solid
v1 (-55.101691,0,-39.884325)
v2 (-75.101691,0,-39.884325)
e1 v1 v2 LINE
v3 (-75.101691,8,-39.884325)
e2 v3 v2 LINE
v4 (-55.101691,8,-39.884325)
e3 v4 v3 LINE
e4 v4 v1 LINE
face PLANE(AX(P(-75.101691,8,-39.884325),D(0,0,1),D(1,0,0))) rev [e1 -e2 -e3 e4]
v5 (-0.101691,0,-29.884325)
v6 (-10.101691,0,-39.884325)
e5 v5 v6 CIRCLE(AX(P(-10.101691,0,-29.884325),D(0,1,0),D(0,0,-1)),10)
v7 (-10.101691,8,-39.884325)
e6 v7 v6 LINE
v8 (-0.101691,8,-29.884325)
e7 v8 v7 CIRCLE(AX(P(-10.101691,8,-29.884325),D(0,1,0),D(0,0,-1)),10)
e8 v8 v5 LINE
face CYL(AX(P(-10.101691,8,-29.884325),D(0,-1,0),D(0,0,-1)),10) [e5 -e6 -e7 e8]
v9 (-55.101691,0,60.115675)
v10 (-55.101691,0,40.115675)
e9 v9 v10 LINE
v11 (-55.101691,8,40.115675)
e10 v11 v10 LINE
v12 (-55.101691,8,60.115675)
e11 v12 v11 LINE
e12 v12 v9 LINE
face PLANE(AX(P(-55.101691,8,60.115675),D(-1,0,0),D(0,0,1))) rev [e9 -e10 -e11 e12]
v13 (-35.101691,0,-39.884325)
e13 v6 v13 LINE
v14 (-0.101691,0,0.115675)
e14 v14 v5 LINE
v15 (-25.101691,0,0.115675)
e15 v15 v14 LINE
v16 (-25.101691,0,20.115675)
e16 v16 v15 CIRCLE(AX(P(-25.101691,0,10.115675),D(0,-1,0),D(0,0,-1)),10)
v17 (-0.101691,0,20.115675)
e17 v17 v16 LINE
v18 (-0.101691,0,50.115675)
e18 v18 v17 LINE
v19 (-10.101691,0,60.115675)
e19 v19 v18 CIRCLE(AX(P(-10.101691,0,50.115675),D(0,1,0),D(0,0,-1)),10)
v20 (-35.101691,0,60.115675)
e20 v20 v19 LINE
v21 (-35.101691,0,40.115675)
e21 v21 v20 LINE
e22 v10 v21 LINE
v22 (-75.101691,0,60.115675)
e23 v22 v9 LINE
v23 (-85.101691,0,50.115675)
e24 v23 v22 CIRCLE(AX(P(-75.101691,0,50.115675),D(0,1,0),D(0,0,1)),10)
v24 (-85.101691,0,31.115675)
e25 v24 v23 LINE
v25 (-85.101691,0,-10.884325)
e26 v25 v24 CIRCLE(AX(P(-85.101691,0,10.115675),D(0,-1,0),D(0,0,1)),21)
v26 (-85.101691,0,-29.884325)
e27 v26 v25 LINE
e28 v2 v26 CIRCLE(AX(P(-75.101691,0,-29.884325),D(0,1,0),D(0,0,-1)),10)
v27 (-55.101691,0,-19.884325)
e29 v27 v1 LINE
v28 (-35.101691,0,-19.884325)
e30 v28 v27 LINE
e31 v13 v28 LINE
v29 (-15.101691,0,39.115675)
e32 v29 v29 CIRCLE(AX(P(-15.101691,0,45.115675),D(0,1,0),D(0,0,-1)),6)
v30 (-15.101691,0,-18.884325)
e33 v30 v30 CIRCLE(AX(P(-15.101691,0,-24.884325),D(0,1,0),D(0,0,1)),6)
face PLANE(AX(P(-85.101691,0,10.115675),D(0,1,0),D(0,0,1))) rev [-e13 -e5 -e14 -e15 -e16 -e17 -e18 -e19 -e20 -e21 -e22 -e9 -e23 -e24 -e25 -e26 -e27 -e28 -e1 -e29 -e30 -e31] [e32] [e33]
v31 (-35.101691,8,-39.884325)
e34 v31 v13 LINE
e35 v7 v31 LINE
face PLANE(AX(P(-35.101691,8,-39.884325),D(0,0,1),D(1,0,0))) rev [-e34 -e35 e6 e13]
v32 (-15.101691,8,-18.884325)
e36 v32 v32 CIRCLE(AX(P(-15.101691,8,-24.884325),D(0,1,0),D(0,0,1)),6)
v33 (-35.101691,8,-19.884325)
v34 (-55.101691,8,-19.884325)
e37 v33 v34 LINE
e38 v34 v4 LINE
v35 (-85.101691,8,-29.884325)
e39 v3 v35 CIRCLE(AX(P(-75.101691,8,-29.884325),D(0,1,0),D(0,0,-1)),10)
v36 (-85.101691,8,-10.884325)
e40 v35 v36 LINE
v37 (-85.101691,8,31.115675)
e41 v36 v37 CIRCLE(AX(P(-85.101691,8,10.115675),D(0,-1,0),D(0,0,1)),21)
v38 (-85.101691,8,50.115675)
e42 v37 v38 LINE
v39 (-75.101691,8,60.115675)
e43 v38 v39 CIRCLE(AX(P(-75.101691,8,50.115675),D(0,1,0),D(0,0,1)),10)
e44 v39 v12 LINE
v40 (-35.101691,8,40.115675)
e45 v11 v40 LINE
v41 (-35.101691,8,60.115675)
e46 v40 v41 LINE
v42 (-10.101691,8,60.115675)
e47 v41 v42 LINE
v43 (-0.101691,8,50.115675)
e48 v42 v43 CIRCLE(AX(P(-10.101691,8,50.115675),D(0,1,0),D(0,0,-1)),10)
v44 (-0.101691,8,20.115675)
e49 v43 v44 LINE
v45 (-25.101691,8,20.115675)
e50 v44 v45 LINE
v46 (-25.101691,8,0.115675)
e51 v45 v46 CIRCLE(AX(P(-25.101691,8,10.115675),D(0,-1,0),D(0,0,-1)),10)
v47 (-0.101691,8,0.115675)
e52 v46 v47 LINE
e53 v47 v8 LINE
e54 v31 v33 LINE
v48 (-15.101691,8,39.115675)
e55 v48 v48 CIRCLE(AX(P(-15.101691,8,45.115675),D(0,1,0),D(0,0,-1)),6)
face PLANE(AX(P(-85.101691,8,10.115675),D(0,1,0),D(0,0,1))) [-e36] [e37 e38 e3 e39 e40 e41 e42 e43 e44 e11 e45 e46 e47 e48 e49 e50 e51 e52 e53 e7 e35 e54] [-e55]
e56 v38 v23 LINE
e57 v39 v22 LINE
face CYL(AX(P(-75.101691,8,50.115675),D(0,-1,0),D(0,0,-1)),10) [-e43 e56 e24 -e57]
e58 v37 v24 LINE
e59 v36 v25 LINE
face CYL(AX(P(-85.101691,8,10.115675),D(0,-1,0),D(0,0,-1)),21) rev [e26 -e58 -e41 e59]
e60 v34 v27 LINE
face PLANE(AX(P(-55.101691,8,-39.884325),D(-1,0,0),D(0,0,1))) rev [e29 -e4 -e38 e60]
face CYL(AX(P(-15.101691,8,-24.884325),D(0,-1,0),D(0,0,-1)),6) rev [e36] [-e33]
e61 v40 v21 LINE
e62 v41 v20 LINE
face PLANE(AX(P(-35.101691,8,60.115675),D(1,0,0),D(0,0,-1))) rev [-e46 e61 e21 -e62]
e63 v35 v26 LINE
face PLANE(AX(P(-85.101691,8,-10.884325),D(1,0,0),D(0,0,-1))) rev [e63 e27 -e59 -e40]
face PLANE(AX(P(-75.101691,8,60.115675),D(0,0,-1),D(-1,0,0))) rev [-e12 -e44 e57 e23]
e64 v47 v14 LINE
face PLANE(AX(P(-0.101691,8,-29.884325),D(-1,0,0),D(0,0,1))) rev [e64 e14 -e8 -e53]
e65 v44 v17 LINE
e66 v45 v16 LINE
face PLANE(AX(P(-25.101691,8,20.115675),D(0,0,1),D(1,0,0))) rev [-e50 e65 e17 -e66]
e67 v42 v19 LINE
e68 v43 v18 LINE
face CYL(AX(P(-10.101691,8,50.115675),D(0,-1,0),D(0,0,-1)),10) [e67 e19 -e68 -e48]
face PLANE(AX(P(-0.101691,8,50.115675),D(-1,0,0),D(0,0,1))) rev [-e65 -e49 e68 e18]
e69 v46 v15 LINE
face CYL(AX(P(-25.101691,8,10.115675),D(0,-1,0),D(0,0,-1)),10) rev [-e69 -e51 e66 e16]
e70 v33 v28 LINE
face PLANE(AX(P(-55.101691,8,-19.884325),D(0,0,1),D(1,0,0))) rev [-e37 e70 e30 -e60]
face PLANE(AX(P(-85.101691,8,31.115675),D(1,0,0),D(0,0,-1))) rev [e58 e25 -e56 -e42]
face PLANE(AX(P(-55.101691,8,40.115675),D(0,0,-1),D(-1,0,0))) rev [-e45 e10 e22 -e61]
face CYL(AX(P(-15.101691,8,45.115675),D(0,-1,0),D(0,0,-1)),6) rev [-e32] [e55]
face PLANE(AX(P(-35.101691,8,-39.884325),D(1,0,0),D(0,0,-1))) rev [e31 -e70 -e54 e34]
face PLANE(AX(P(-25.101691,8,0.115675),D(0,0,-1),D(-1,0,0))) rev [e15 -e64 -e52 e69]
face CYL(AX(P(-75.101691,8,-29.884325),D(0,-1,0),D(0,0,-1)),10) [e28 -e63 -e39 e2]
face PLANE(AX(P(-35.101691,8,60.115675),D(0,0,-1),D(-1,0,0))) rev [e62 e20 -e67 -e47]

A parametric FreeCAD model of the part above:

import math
import FreeCAD as App
import Part
import Sketcher
Q = App.Units.Quantity

doc = App.newDocument("Part")
body = doc.addObject("PartDesign::Body", "Body")

# Sketch on XZ plane
sketch1 = body.newObject("Sketcher::SketchObject", "Sketch")
sketch1.AttachmentSupport = (doc.getObject("XZ_Plane"), [""])
sketch1.MapMode = "FlatFace"
sketch1.addGeometry([
    Part.LineSegment(App.Vector(-25.101691, 0.115675, 0), App.Vector(-0.101691, 0.115675, 0)),  # 0
    Part.LineSegment(App.Vector(-0.101691, 0.115675, 0), App.Vector(-0.101691, -29.884325, 0)),  # 1
    Part.ArcOfCircle(Part.Circle(App.Vector(-10.101691, -29.884325, 0), App.Vector(0, 0, 1), 10), math.radians(-90), math.radians(0)),  # 2
    Part.LineSegment(App.Vector(-10.101691, -39.884325, 0), App.Vector(-35.101691, -39.884325, 0)),  # 3
    Part.LineSegment(App.Vector(-35.101691, -39.884325, 0), App.Vector(-35.101691, -19.884325, 0)),  # 4
    Part.LineSegment(App.Vector(-35.101691, -19.884325, 0), App.Vector(-55.101691, -19.884325, 0)),  # 5
    Part.LineSegment(App.Vector(-55.101691, -19.884325, 0), App.Vector(-55.101691, -39.884325, 0)),  # 6
    Part.LineSegment(App.Vector(-55.101691, -39.884325, 0), App.Vector(-75.101691, -39.884325, 0)),  # 7
    Part.ArcOfCircle(Part.Circle(App.Vector(-75.101691, -29.884325, 0), App.Vector(0, 0, 1), 10), math.radians(180), math.radians(270)),  # 8
    Part.LineSegment(App.Vector(-85.101691, -29.884325, 0), App.Vector(-85.101691, -10.884325, 0)),  # 9
    Part.ArcOfCircle(Part.Circle(App.Vector(-85.101691, 10.115675, 0), App.Vector(0, 0, 1), 21), math.radians(-90), math.radians(90)),  # 10
    Part.LineSegment(App.Vector(-85.101691, 31.115675, 0), App.Vector(-85.101691, 50.115675, 0)),  # 11
    Part.ArcOfCircle(Part.Circle(App.Vector(-75.101691, 50.115675, 0), App.Vector(0, 0, 1), 10), math.radians(90), math.radians(180)),  # 12
    Part.LineSegment(App.Vector(-75.101691, 60.115675, 0), App.Vector(-55.101691, 60.115675, 0)),  # 13
    Part.LineSegment(App.Vector(-55.101691, 60.115675, 0), App.Vector(-55.101691, 40.115675, 0)),  # 14
    Part.LineSegment(App.Vector(-55.101691, 40.115675, 0), App.Vector(-35.101691, 40.115675, 0)),  # 15
    Part.LineSegment(App.Vector(-35.101691, 40.115675, 0), App.Vector(-35.101691, 60.115675, 0)),  # 16
    Part.LineSegment(App.Vector(-35.101691, 60.115675, 0), App.Vector(-10.101691, 60.115675, 0)),  # 17
    Part.ArcOfCircle(Part.Circle(App.Vector(-10.101691, 50.115675, 0), App.Vector(0, 0, 1), 10), math.radians(0), math.radians(90)),  # 18
    Part.LineSegment(App.Vector(-0.101691, 50.115675, 0), App.Vector(-0.101691, 20.115675, 0)),  # 19
    Part.LineSegment(App.Vector(-0.101691, 20.115675, 0), App.Vector(-25.101691, 20.115675, 0)),  # 20
    Part.ArcOfCircle(Part.Circle(App.Vector(-25.101691, 10.115675, 0), App.Vector(0, 0, 1), 10), math.radians(90), math.radians(270)),  # 21
    Part.Circle(App.Vector(-15.101691, 45.115675, 0), App.Vector(0, 0, 1), 6),  # 22
    Part.Circle(App.Vector(-15.101691, -24.884325, 0), App.Vector(0, 0, 1), 6),  # 23
], False)
sketch1.addConstraint([
    Sketcher.Constraint("Coincident", 0, 2, 1, 1),
    Sketcher.Constraint("Tangent", 1, 2, 2, 2),
    Sketcher.Constraint("Tangent", 2, 1, 3, 1),
    Sketcher.Constraint("Coincident", 3, 2, 4, 1),
    Sketcher.Constraint("Coincident", 4, 2, 5, 1),
    Sketcher.Constraint("Coincident", 5, 2, 6, 1),
    Sketcher.Constraint("Coincident", 6, 2, 7, 1),
    Sketcher.Constraint("Tangent", 7, 2, 8, 2),
    Sketcher.Constraint("Tangent", 8, 1, 9, 1),
    Sketcher.Constraint("Coincident", 9, 2, 10, 1),
    Sketcher.Constraint("Coincident", 10, 2, 11, 1),
    Sketcher.Constraint("Tangent", 11, 2, 12, 2),
    Sketcher.Constraint("Tangent", 12, 1, 13, 1),
    Sketcher.Constraint("Coincident", 13, 2, 14, 1),
    Sketcher.Constraint("Coincident", 14, 2, 15, 1),
    Sketcher.Constraint("Coincident", 15, 2, 16, 1),
    Sketcher.Constraint("Coincident", 16, 2, 17, 1),
    Sketcher.Constraint("Tangent", 17, 2, 18, 2),
    Sketcher.Constraint("Tangent", 18, 1, 19, 1),
    Sketcher.Constraint("Coincident", 19, 2, 20, 1),
    Sketcher.Constraint("Tangent", 20, 2, 21, 1),
    Sketcher.Constraint("Tangent", 21, 2, 0, 1),
    Sketcher.Constraint("Horizontal", 0),
    Sketcher.Constraint("Vertical", 1),
    Sketcher.Constraint("Horizontal", 3),
    Sketcher.Constraint("Vertical", 4),
    Sketcher.Constraint("Horizontal", 5),
    Sketcher.Constraint("Vertical", 6),
    Sketcher.Constraint("Horizontal", 7),
    Sketcher.Constraint("Vertical", 9),
    Sketcher.Constraint("Vertical", 11),
    Sketcher.Constraint("Horizontal", 13),
    Sketcher.Constraint("Vertical", 14),
    Sketcher.Constraint("Horizontal", 15),
    Sketcher.Constraint("Vertical", 16),
    Sketcher.Constraint("Horizontal", 17),
    Sketcher.Constraint("Vertical", 19),
    Sketcher.Constraint("Horizontal", 20),
    Sketcher.Constraint("Equal", 2, 8),
    Sketcher.Constraint("Equal", 8, 12),
    Sketcher.Constraint("Equal", 12, 18),
    Sketcher.Constraint("Equal", 18, 21),
    Sketcher.Constraint("Equal", 22, 23),
    Sketcher.Constraint("Horizontal", 2, 3, 8, 3),
    Sketcher.Constraint("Horizontal", 12, 3, 18, 3),
    Sketcher.Constraint("Horizontal", 10, 3, 21, 3),
    Sketcher.Constraint("Vertical", 8, 3, 12, 3),
    Sketcher.Constraint("Vertical", 2, 3, 18, 3),
    Sketcher.Constraint("Vertical", 22, 3, 23, 3),
    Sketcher.Constraint("Vertical", 10, 3, 8, 1),
    Sketcher.Constraint("Vertical", 6, 2, 13, 2),
    Sketcher.Constraint("Vertical", 4, 2, 15, 2),
    Sketcher.Constraint("Equal", 0, 3),
    Sketcher.Constraint("Equal", 5, 7),
    Sketcher.Constraint("Equal", 15, 4),
    Sketcher.Constraint("Equal", 9, 11),
    Sketcher.Constraint("Equal", 6, 14),
    Sketcher.Constraint("Diameter", 22, Q("12 mm")),
    Sketcher.Constraint("Radius", 2, Q("10 mm")),
    Sketcher.Constraint("Radius", 10, Q("21 mm")),
    Sketcher.Constraint("DistanceX", 0, 1, 0, 2, Q("25 mm")),
    Sketcher.Constraint("DistanceX", 5, 2, 5, 1, Q("20 mm")),
    Sketcher.Constraint("DistanceY", 1, 2, 1, 1, Q("30 mm")),
    Sketcher.Constraint("DistanceX", 22, 3, 18, 3, Q("5 mm")),
    Sketcher.Constraint("DistanceY", 22, 3, 18, 3, Q("5 mm")),
    Sketcher.Constraint("DistanceY", 2, 3, 23, 3, Q("5 mm")),
    Sketcher.Constraint("DistanceX", 2, 3, -1, 1, Q("10.101691 mm")),
    Sketcher.Constraint("DistanceY", 2, 3, -1, 1, Q("29.884325 mm")),
])
pad1 = body.newObject("PartDesign::Pad", "Pad")
pad1.Profile = sketch1
pad1.Length = 8
pad1.Reversed = True

doc.recompute()
